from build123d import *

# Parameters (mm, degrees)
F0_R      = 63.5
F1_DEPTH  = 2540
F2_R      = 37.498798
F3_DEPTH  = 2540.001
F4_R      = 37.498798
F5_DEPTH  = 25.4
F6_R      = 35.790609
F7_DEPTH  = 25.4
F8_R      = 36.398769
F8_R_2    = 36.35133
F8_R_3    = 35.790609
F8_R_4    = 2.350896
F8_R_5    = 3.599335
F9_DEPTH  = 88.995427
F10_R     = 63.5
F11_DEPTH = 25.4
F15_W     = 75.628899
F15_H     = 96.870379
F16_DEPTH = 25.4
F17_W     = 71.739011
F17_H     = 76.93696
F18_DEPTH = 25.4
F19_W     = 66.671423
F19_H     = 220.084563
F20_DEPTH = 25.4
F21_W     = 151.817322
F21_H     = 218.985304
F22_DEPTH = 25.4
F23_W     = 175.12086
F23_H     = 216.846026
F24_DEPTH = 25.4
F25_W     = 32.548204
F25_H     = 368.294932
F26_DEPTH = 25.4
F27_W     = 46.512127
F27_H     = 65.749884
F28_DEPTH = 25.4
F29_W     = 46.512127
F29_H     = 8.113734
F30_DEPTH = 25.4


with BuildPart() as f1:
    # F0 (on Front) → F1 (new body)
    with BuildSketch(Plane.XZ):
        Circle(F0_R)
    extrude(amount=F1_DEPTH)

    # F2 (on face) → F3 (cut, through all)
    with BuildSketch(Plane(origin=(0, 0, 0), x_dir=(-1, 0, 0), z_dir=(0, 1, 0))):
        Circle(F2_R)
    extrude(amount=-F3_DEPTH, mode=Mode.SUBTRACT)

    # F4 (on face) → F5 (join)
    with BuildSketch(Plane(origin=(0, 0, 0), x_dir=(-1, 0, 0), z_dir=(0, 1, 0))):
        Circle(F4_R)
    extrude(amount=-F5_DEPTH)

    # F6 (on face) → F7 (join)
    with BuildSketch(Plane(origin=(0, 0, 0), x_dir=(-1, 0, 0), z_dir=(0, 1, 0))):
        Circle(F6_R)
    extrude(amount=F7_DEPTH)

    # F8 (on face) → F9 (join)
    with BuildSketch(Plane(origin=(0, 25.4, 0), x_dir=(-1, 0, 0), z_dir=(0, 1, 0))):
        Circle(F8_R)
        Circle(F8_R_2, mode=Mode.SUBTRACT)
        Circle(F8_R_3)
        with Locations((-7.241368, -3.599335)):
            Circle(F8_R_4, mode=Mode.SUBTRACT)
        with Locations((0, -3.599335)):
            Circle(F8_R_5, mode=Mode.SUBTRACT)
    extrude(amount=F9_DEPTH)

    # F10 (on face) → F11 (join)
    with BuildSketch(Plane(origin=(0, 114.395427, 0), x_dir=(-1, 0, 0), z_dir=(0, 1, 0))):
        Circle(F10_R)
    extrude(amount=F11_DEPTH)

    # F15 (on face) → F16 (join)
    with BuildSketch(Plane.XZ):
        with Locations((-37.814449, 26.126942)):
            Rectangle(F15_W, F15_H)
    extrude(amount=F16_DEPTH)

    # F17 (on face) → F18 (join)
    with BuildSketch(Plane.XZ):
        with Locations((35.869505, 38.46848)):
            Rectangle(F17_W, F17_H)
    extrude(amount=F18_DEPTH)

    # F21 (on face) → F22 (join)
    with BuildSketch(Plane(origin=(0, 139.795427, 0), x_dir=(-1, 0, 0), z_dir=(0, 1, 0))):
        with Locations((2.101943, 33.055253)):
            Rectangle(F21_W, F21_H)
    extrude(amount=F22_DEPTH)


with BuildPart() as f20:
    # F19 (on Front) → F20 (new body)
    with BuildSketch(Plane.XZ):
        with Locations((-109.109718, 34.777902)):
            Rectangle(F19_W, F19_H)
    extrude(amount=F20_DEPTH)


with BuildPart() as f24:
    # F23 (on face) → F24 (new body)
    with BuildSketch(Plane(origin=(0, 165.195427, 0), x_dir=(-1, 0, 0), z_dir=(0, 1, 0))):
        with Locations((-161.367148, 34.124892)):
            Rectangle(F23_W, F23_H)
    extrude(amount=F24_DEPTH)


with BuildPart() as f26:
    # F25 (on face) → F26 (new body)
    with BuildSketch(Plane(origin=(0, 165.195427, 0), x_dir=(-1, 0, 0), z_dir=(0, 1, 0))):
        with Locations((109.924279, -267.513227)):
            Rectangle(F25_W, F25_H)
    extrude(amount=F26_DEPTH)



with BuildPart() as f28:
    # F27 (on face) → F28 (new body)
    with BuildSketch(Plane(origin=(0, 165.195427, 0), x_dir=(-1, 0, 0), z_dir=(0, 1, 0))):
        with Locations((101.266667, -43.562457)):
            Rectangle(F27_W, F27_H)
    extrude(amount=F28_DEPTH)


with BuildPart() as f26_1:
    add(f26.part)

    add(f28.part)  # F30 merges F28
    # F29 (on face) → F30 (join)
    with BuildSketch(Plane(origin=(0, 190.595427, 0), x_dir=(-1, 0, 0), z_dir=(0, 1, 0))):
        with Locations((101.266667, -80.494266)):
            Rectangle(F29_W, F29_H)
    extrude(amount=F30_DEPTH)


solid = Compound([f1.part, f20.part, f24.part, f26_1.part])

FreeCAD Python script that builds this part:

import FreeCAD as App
import Part
import Sketcher
from FreeCAD import Vector
Q = App.Units.Quantity

doc = App.newDocument("Part")
body = doc.addObject("PartDesign::Body", "Body")
body.AllowCompound = True

sketch1 = body.newObject("Sketcher::SketchObject", "Sketch")
sketch1.AttachmentSupport = (doc.getObject("XZ_Plane"), [""])
sketch1.MapMode = "FlatFace"
sketch1.addGeometry(Part.Circle(Vector(0, 0, 0), Vector(0, 0, 1), 64), False)
sketch1.addConstraint([
    Sketcher.Constraint("Coincident", 0, 3, -1, 1),
    Sketcher.Constraint("Diameter", 0, Q("5 in")),
])
pad1 = body.newObject("PartDesign::Pad", "Pad")
pad1.Profile = sketch1
pad1.Length = Q("100 in")

sketch2 = body.newObject("Sketcher::SketchObject", "Sketch001")
sketch2.AttachmentSupport = (doc.getObject("XZ_Plane"), [""])
sketch2.MapMode = "FlatFace"
sketch2.addGeometry(Part.Circle(Vector(0, 0, 0), Vector(0, 0, 1), 37), False)
sketch2.addConstraint([
    Sketcher.Constraint("Coincident", 0, 3, -1, 1),
    Sketcher.Constraint("Diameter", 0, 74.997596),
])
pocket1 = body.newObject("PartDesign::Pocket", "Pocket")
pocket1.Profile = sketch2
pocket1.Type = "ThroughAll"
pocket1.Reversed = True

sketch3 = body.newObject("Sketcher::SketchObject", "Sketch002")
sketch3.AttachmentSupport = (doc.getObject("XZ_Plane"), [""])
sketch3.MapMode = "FlatFace"
sketch3.addGeometry(Part.Circle(Vector(0, 0, 0), Vector(0, 0, 1), 37), False)
sketch3.addConstraint([
    Sketcher.Constraint("Coincident", 0, 3, -1, 1),
    Sketcher.Constraint("Diameter", 0, 74.997596),
])
pad2 = body.newObject("PartDesign::Pad", "Pad001")
pad2.Profile = sketch3
pad2.Length = Q("1 in")

sketch4 = body.newObject("Sketcher::SketchObject", "Sketch003")
sketch4.AttachmentSupport = (doc.getObject("XZ_Plane"), [""])
sketch4.MapMode = "FlatFace"
sketch4.addGeometry(Part.Circle(Vector(0, 0, 0), Vector(0, 0, 1), 36), False)
sketch4.addConstraint([
    Sketcher.Constraint("Coincident", 0, 3, -1, 1),
    Sketcher.Constraint("Diameter", 0, 71.581218),
])
pad3 = body.newObject("PartDesign::Pad", "Pad002")
pad3.Profile = sketch4
pad3.Length = Q("1 in")
pad3.Reversed = True

sketch5 = body.newObject("Sketcher::SketchObject", "Sketch004")
sketch5.AttachmentSupport = (doc.getObject("XZ_Plane"), [""])
sketch5.MapMode = "FlatFace"
sketch5.AttachmentOffset = App.Placement(Vector(0, 0, -1 * 25.4), App.Rotation())
sketch5.addGeometry([
    Part.Circle(Vector(0, 0, 0), Vector(0, 0, 1), 36.4),
    Part.Circle(Vector(0, 0, 0), Vector(0, 0, 1), 36.4),
    Part.Circle(Vector(0, 0, 0), Vector(0, 0, 1), 35.8),
    Part.Circle(Vector(7.2, -3.6, 0), Vector(0, 0, 1), 2.4),
    Part.Circle(Vector(0, -3.6, 0), Vector(0, 0, 1), 3.6),
], False)
sketch5.addConstraint([
    Sketcher.Constraint("Coincident", 0, 3, -1, 1),
    Sketcher.Constraint("Coincident", 1, 3, -1, 1),
    Sketcher.Constraint("Coincident", 2, 3, -1, 1),
    Sketcher.Constraint("PointOnObject", 4, 3, -2),
    Sketcher.Constraint("Horizontal", 3, 3, 4, 3),
    Sketcher.Constraint("Diameter", 0, 72.797538),
    Sketcher.Constraint("Diameter", 1, 72.70266),
    Sketcher.Constraint("Diameter", 2, 71.581218),
    Sketcher.Constraint("Diameter", 4, 7.19867),
    Sketcher.Constraint("Diameter", 3, 4.701792),
    Sketcher.Constraint("DistanceX", -1, 1, 3, 3, 7.241368),
    Sketcher.Constraint("DistanceY", 3, 3, -1, 1, 3.599335),
])
pad4 = body.newObject("PartDesign::Pad", "Pad003")
pad4.Profile = sketch5
pad4.Length = 88.995427
pad4.Reversed = True

sketch6 = body.newObject("Sketcher::SketchObject", "Sketch005")
sketch6.AttachmentSupport = (doc.getObject("XZ_Plane"), [""])
sketch6.MapMode = "FlatFace"
sketch6.AttachmentOffset = App.Placement(Vector(0, 0, -114.395427), App.Rotation())
sketch6.addGeometry(Part.Circle(Vector(0, 0, 0), Vector(0, 0, 1), 64), False)
sketch6.addConstraint([
    Sketcher.Constraint("Coincident", 0, 3, -1, 1),
    Sketcher.Constraint("Diameter", 0, Q("5 in")),
])
pad5 = body.newObject("PartDesign::Pad", "Pad004")
pad5.Profile = sketch6
pad5.Length = Q("1 in")
pad5.Reversed = True

sketch7 = body.newObject("Sketcher::SketchObject", "Sketch006")
sketch7.AttachmentSupport = (doc.getObject("XZ_Plane"), [""])
sketch7.MapMode = "FlatFace"
sketch7.addGeometry([
    Part.LineSegment(Vector(-76, 75, 0), Vector(-76, -22, 0)),
    Part.LineSegment(Vector(-76, -22, 0), Vector(0, -22, 0)),
    Part.LineSegment(Vector(0, -22, 0), Vector(0, 75, 0)),
    Part.LineSegment(Vector(0, 75, 0), Vector(-76, 75, 0)),
], False)
sketch7.addConstraint([
    Sketcher.Constraint("Coincident", 0, 2, 1, 1),
    Sketcher.Constraint("Coincident", 1, 2, 2, 1),
    Sketcher.Constraint("Coincident", 2, 2, 3, 1),
    Sketcher.Constraint("Coincident", 3, 2, 0, 1),
    Sketcher.Constraint("Vertical", 0),
    Sketcher.Constraint("Horizontal", 1),
    Sketcher.Constraint("Vertical", 2),
    Sketcher.Constraint("Horizontal", 3),
    Sketcher.Constraint("PointOnObject", 1, 2, -2),
    Sketcher.Constraint("DistanceX", 1, 1, 1, 2, 75.628899),
    Sketcher.Constraint("DistanceY", 0, 2, 0, 1, 96.870379),
    Sketcher.Constraint("DistanceY", -1, 1, 2, 2, 74.562132),
])
pad6 = body.newObject("PartDesign::Pad", "Pad005")
pad6.Profile = sketch7
pad6.Length = Q("1 in")

sketch8 = body.newObject("Sketcher::SketchObject", "Sketch007")
sketch8.AttachmentSupport = (doc.getObject("XZ_Plane"), [""])
sketch8.MapMode = "FlatFace"
sketch8.addGeometry([
    Part.LineSegment(Vector(0, 77, 0), Vector(0, 0, 0)),
    Part.LineSegment(Vector(0, 0, 0), Vector(72, 0, 0)),
    Part.LineSegment(Vector(72, 0, 0), Vector(72, 77, 0)),
    Part.LineSegment(Vector(72, 77, 0), Vector(0, 77, 0)),
], False)
sketch8.addConstraint([
    Sketcher.Constraint("Coincident", 0, 2, 1, 1),
    Sketcher.Constraint("Coincident", 1, 2, 2, 1),
    Sketcher.Constraint("Coincident", 2, 2, 3, 1),
    Sketcher.Constraint("Coincident", 3, 2, 0, 1),
    Sketcher.Constraint("Vertical", 0),
    Sketcher.Constraint("Horizontal", 1),
    Sketcher.Constraint("Vertical", 2),
    Sketcher.Constraint("Horizontal", 3),
    Sketcher.Constraint("Coincident", 0, 2, -1, 1),
    Sketcher.Constraint("DistanceX", 1, 1, 1, 2, 71.739011),
    Sketcher.Constraint("DistanceY", 0, 2, 0, 1, 76.93696),
])
pad7 = body.newObject("PartDesign::Pad", "Pad006")
pad7.Profile = sketch8
pad7.Length = Q("1 in")

sketch9 = body.newObject("Sketcher::SketchObject", "Sketch008")
sketch9.AttachmentSupport = (doc.getObject("XZ_Plane"), [""])
sketch9.MapMode = "FlatFace"
sketch9.AttachmentOffset = App.Placement(Vector(0, 0, -139.795427), App.Rotation())
sketch9.addGeometry([
    Part.LineSegment(Vector(74, 143, 0), Vector(74, -76, 0)),
    Part.LineSegment(Vector(74, -76, 0), Vector(-78, -76, 0)),
    Part.LineSegment(Vector(-78, -76, 0), Vector(-78, 143, 0)),
    Part.LineSegment(Vector(-78, 143, 0), Vector(74, 143, 0)),
], False)
sketch9.addConstraint([
    Sketcher.Constraint("Coincident", 0, 2, 1, 1),
    Sketcher.Constraint("Coincident", 1, 2, 2, 1),
    Sketcher.Constraint("Coincident", 2, 2, 3, 1),
    Sketcher.Constraint("Coincident", 3, 2, 0, 1),
    Sketcher.Constraint("Vertical", 0),
    Sketcher.Constraint("Horizontal", 1),
    Sketcher.Constraint("Vertical", 2),
    Sketcher.Constraint("Horizontal", 3),
    Sketcher.Constraint("DistanceX", 1, 2, 1, 1, 151.817322),
    Sketcher.Constraint("DistanceY", 0, 2, -1, 1, 76.437399),
    Sketcher.Constraint("DistanceY", 0, 2, 0, 1, 218.985304),
    Sketcher.Constraint("DistanceX", -1, 1, 0, 2, 73.806718),
])
pad8 = body.newObject("PartDesign::Pad", "Pad007")
pad8.Profile = sketch9
pad8.Length = Q("1 in")
pad8.Reversed = True
body2 = doc.addObject("PartDesign::Body", "Body001")

sketch10 = body2.newObject("Sketcher::SketchObject", "Sketch009")
sketch10.AttachmentSupport = (doc.getObject("XZ_Plane001"), [""])
sketch10.MapMode = "FlatFace"
sketch10.addGeometry([
    Part.LineSegment(Vector(-142, 145, 0), Vector(-142, -75, 0)),
    Part.LineSegment(Vector(-142, -75, 0), Vector(-76, -75, 0)),
    Part.LineSegment(Vector(-76, -75, 0), Vector(-76, 145, 0)),
    Part.LineSegment(Vector(-76, 145, 0), Vector(-142, 145, 0)),
], False)
sketch10.addConstraint([
    Sketcher.Constraint("Coincident", 0, 2, 1, 1),
    Sketcher.Constraint("Coincident", 1, 2, 2, 1),
    Sketcher.Constraint("Coincident", 2, 2, 3, 1),
    Sketcher.Constraint("Coincident", 3, 2, 0, 1),
    Sketcher.Constraint("Vertical", 0),
    Sketcher.Constraint("Horizontal", 1),
    Sketcher.Constraint("Vertical", 2),
    Sketcher.Constraint("Horizontal", 3),
    Sketcher.Constraint("DistanceX", 1, 1, 1, 2, 66.671423),
    Sketcher.Constraint("DistanceY", 0, 2, 0, 1, 220.084563),
    Sketcher.Constraint("DistanceX", 0, 2, -1, 1, 142.445429),
    Sketcher.Constraint("DistanceY", 0, 2, -1, 1, 75.26438),
])
pad9 = body2.newObject("PartDesign::Pad", "Pad008")
pad9.Profile = sketch10
pad9.Length = Q("1 in")
body3 = doc.addObject("PartDesign::Body", "Body002")

sketch11 = body3.newObject("Sketcher::SketchObject", "Sketch010")
sketch11.AttachmentSupport = (doc.getObject("XZ_Plane002"), [""])
sketch11.MapMode = "FlatFace"
sketch11.AttachmentOffset = App.Placement(Vector(0, 0, -165.195427), App.Rotation())
sketch11.addGeometry([
    Part.LineSegment(Vector(249, 143, 0), Vector(249, -74, 0)),
    Part.LineSegment(Vector(249, -74, 0), Vector(74, -74, 0)),
    Part.LineSegment(Vector(74, -74, 0), Vector(74, 143, 0)),
    Part.LineSegment(Vector(74, 143, 0), Vector(249, 143, 0)),
], False)
sketch11.addConstraint([
    Sketcher.Constraint("Coincident", 0, 2, 1, 1),
    Sketcher.Constraint("Coincident", 1, 2, 2, 1),
    Sketcher.Constraint("Coincident", 2, 2, 3, 1),
    Sketcher.Constraint("Coincident", 3, 2, 0, 1),
    Sketcher.Constraint("Vertical", 0),
    Sketcher.Constraint("Horizontal", 1),
    Sketcher.Constraint("Vertical", 2),
    Sketcher.Constraint("Horizontal", 3),
    Sketcher.Constraint("DistanceX", 1, 2, 1, 1, 175.12086),
    Sketcher.Constraint("DistanceY", 0, 2, 0, 1, 216.846026),
    Sketcher.Constraint("DistanceX", -1, 1, 0, 2, 248.927578),
    Sketcher.Constraint("DistanceY", 0, 2, -1, 1, 74.298121),
])
pad10 = body3.newObject("PartDesign::Pad", "Pad009")
pad10.Profile = sketch11
pad10.Length = Q("1 in")
pad10.Reversed = True
body4 = doc.addObject("PartDesign::Body", "Body003")

sketch12 = body4.newObject("Sketcher::SketchObject", "Sketch011")
sketch12.AttachmentSupport = (doc.getObject("XZ_Plane003"), [""])
sketch12.MapMode = "FlatFace"
sketch12.AttachmentOffset = App.Placement(Vector(0, 0, -165.195427), App.Rotation())
sketch12.addGeometry([
    Part.LineSegment(Vector(-94, -83, 0), Vector(-94, -452, 0)),
    Part.LineSegment(Vector(-94, -452, 0), Vector(-126, -452, 0)),
    Part.LineSegment(Vector(-126, -452, 0), Vector(-126, -83, 0)),
    Part.LineSegment(Vector(-126, -83, 0), Vector(-94, -83, 0)),
], False)
sketch12.addConstraint([
    Sketcher.Constraint("Coincident", 0, 2, 1, 1),
    Sketcher.Constraint("Coincident", 1, 2, 2, 1),
    Sketcher.Constraint("Coincident", 2, 2, 3, 1),
    Sketcher.Constraint("Coincident", 3, 2, 0, 1),
    Sketcher.Constraint("Vertical", 0),
    Sketcher.Constraint("Horizontal", 1),
    Sketcher.Constraint("Vertical", 2),
    Sketcher.Constraint("Horizontal", 3),
    Sketcher.Constraint("DistanceY", 0, 2, 0, 1, 368.294932),
    Sketcher.Constraint("DistanceX", 1, 2, 1, 1, 32.548204),
    Sketcher.Constraint("DistanceX", 1, 2, -1, 1, 126.198381),
    Sketcher.Constraint("DistanceY", 2, 2, -1, 1, 83.365761),
])
pad11 = body4.newObject("PartDesign::Pad", "Pad010")
pad11.Profile = sketch12
pad11.Length = Q("1 in")
pad11.Reversed = True
body5 = doc.addObject("PartDesign::Body", "Body004")

sketch13 = body5.newObject("Sketcher::SketchObject", "Sketch012")
sketch13.AttachmentSupport = (doc.getObject("XZ_Plane004"), [""])
sketch13.MapMode = "FlatFace"
sketch13.AttachmentOffset = App.Placement(Vector(0, 0, -165.195427), App.Rotation())
sketch13.addGeometry([
    Part.LineSegment(Vector(-78, -11, 0), Vector(-78, -76, 0)),
    Part.LineSegment(Vector(-78, -76, 0), Vector(-125, -76, 0)),
    Part.LineSegment(Vector(-125, -76, 0), Vector(-125, -11, 0)),
    Part.LineSegment(Vector(-125, -11, 0), Vector(-78, -11, 0)),
], False)
sketch13.addConstraint([
    Sketcher.Constraint("Coincident", 0, 2, 1, 1),
    Sketcher.Constraint("Coincident", 1, 2, 2, 1),
    Sketcher.Constraint("Coincident", 2, 2, 3, 1),
    Sketcher.Constraint("Coincident", 3, 2, 0, 1),
    Sketcher.Constraint("Vertical", 0),
    Sketcher.Constraint("Horizontal", 1),
    Sketcher.Constraint("Vertical", 2),
    Sketcher.Constraint("Horizontal", 3),
    Sketcher.Constraint("DistanceY", 0, 2, -1, 1, 76.437399),
    Sketcher.Constraint("DistanceX", 1, 2, 1, 1, 46.512127),
    Sketcher.Constraint("DistanceY", 0, 2, 0, 1, 65.749884),
    Sketcher.Constraint("DistanceX", 1, 2, -1, 1, 124.52273),
])
pad12 = body5.newObject("PartDesign::Pad", "Pad011")
pad12.Profile = sketch13
pad12.Length = Q("1 in")
pad12.Reversed = True
body4.AllowCompound = True
doc.recompute()

boolean = body4.newObject("PartDesign::Boolean", "Boolean")
boolean.Type = "Fuse"
boolean.addObjects([body5])

sketch14 = body4.newObject("Sketcher::SketchObject", "Sketch013")
sketch14.AttachmentSupport = (doc.getObject("XZ_Plane003"), [""])
sketch14.MapMode = "FlatFace"
sketch14.AttachmentOffset = App.Placement(Vector(0, 0, -190.595427), App.Rotation())
sketch14.addGeometry([
    Part.LineSegment(Vector(-78, -76, 0), Vector(-78, -85, 0)),
    Part.LineSegment(Vector(-78, -85, 0), Vector(-125, -85, 0)),
    Part.LineSegment(Vector(-125, -85, 0), Vector(-125, -76, 0)),
    Part.LineSegment(Vector(-125, -76, 0), Vector(-78, -76, 0)),
], False)
sketch14.addConstraint([
    Sketcher.Constraint("Coincident", 0, 2, 1, 1),
    Sketcher.Constraint("Coincident", 1, 2, 2, 1),
    Sketcher.Constraint("Coincident", 2, 2, 3, 1),
    Sketcher.Constraint("Coincident", 3, 2, 0, 1),
    Sketcher.Constraint("Vertical", 0),
    Sketcher.Constraint("Horizontal", 1),
    Sketcher.Constraint("Vertical", 2),
    Sketcher.Constraint("Horizontal", 3),
    Sketcher.Constraint("DistanceY", 2, 2, -1, 1, 76.437399),
    Sketcher.Constraint("DistanceX", 1, 2, 1, 1, 46.512127),
    Sketcher.Constraint("DistanceY", 0, 2, 0, 1, 8.113734),
    Sketcher.Constraint("DistanceX", 1, 2, -1, 1, 124.52273),
])
pad13 = body4.newObject("PartDesign::Pad", "Pad012")
pad13.Profile = sketch14
pad13.Length = Q("1 in")
pad13.Reversed = True

doc.recompute()
